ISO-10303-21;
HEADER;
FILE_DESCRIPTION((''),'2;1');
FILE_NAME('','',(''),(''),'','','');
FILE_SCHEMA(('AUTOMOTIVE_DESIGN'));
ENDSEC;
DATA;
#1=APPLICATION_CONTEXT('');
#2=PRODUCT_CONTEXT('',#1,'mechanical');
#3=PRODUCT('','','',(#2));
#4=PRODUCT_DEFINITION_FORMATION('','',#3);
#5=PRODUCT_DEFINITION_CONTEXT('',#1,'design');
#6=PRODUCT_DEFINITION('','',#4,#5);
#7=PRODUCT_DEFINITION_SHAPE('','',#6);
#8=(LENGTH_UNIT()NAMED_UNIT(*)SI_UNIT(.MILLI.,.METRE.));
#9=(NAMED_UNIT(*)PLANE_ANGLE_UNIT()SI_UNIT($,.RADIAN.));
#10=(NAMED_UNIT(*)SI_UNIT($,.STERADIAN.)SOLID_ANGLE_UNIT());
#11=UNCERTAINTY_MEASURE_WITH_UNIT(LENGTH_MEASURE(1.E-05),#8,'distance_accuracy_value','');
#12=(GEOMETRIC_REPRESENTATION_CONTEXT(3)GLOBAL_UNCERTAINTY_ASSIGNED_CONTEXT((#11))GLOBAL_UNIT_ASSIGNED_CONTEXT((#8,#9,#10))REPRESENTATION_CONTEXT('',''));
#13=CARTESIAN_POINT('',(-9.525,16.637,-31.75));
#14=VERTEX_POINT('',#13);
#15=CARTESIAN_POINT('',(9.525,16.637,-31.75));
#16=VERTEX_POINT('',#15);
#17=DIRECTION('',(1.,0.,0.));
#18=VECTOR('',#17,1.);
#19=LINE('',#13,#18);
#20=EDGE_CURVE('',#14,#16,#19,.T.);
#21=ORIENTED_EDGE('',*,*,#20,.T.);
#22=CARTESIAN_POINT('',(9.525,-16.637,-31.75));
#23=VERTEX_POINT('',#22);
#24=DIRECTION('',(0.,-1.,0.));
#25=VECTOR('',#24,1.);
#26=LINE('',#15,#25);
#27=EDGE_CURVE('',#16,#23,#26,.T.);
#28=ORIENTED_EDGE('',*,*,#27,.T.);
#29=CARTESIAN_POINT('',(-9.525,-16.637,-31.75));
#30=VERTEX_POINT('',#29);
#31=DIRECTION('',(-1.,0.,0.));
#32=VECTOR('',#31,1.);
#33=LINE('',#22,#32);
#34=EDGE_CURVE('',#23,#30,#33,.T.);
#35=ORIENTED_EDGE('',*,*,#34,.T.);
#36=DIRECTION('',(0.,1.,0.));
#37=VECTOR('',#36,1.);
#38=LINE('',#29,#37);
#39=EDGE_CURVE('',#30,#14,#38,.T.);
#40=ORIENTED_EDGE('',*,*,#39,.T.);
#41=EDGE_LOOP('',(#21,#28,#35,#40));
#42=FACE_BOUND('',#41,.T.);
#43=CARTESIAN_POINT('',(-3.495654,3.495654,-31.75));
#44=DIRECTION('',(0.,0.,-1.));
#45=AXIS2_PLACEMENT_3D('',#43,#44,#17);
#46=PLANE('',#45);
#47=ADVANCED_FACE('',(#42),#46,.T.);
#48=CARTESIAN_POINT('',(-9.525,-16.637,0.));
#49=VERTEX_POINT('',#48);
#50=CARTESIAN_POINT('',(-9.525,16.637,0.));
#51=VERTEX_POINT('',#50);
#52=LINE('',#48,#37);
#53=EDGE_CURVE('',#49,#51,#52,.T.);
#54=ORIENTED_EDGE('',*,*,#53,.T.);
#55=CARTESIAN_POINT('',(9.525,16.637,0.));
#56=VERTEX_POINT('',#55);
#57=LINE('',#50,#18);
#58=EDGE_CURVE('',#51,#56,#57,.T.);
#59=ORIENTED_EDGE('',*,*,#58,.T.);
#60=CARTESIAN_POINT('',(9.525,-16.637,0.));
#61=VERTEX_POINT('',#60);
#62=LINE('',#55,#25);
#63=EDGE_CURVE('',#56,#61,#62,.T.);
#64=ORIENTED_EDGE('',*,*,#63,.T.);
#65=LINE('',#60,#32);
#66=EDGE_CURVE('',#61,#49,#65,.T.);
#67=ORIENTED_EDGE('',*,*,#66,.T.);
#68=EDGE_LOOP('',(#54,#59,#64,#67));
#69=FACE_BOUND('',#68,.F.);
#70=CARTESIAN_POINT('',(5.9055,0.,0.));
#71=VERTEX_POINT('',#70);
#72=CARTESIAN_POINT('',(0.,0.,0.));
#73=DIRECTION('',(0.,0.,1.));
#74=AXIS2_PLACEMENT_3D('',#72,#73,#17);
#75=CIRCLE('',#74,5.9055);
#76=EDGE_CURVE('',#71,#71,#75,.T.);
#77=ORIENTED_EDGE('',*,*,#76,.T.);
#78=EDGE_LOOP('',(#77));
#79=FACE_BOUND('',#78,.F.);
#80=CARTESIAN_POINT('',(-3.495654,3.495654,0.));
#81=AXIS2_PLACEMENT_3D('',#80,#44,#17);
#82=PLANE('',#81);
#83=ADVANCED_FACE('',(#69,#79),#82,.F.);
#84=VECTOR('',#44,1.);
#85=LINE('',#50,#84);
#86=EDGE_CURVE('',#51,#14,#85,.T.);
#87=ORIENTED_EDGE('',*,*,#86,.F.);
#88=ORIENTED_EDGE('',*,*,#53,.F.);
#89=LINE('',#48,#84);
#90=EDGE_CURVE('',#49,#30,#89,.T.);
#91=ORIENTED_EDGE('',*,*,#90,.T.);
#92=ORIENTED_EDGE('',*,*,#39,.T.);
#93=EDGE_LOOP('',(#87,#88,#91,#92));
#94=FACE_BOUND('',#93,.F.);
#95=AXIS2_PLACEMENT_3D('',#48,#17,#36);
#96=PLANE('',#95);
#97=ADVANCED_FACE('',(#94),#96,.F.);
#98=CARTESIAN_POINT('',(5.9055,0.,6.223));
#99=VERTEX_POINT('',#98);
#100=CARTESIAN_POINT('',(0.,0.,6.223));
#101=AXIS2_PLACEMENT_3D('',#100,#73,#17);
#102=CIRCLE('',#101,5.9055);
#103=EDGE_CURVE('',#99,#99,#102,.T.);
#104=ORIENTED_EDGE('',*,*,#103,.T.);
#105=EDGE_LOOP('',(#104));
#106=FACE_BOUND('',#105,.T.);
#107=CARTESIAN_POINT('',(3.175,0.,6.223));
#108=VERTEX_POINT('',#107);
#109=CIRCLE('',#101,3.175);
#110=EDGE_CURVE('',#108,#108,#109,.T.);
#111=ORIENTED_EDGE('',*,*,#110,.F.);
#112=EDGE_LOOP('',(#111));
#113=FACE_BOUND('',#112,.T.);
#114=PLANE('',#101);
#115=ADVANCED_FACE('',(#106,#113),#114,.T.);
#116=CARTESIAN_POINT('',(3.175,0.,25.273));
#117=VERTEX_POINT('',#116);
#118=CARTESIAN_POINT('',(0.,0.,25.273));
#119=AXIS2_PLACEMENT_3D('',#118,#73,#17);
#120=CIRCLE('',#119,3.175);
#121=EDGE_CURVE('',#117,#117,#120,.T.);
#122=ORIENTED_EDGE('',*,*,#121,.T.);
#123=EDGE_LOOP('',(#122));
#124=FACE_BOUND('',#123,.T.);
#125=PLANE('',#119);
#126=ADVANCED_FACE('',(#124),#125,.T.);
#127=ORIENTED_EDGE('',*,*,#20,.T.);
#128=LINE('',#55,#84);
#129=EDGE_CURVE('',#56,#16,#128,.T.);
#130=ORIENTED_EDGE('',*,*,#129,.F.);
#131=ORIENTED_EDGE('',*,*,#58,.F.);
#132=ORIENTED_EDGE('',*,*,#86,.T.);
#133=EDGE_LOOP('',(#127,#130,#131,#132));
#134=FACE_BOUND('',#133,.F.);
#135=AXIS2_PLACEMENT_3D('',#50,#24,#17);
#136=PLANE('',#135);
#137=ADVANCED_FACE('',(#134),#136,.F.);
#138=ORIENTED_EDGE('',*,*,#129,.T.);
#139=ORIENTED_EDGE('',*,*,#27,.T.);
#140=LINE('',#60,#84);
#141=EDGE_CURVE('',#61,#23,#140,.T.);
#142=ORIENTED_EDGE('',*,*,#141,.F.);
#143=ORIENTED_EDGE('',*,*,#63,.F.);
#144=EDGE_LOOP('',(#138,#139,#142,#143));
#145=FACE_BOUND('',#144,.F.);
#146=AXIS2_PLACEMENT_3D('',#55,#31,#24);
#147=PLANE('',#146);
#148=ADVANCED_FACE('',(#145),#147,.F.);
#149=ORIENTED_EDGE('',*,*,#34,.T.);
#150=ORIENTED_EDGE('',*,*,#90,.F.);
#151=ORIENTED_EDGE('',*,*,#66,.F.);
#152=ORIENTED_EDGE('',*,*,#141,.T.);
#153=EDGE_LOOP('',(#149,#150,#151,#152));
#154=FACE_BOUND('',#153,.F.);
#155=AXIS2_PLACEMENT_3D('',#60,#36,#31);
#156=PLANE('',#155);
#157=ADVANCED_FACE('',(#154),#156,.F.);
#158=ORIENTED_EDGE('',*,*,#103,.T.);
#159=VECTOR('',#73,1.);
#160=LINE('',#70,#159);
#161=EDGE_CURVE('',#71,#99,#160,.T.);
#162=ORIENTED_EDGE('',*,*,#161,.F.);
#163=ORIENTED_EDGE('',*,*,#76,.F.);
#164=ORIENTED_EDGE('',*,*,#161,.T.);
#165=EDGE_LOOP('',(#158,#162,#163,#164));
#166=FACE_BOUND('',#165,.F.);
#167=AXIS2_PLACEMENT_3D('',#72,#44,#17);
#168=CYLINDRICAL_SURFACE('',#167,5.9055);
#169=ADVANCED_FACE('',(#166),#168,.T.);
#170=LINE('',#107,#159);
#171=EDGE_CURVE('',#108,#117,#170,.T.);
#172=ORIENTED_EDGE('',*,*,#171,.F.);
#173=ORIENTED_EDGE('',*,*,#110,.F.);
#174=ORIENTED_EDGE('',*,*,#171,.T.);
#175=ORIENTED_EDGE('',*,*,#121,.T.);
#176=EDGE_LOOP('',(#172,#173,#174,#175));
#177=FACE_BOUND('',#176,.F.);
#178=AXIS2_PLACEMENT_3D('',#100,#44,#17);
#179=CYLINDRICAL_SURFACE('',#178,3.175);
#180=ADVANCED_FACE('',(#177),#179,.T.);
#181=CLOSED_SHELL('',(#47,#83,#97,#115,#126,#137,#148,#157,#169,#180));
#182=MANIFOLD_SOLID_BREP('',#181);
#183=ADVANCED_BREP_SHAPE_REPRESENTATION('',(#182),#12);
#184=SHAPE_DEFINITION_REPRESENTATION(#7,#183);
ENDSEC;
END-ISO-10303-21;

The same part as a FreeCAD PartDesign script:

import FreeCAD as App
import Part
import Sketcher

V = App.Vector
Q = App.Units.Quantity

doc = App.newDocument("Part")
body = doc.addObject("PartDesign::Body", "Body")

sketch1 = body.newObject("Sketcher::SketchObject", "Sketch")
sketch1.AttachmentSupport = (doc.getObject("XY_Plane"), [""])
sketch1.MapMode = "FlatFace"
sketch1.addGeometry(Part.Circle(V(0, 0, 0), V(0, 0, 1), 6), False)
sketch1.addConstraint([
    Sketcher.Constraint("Coincident", 0, 3, -1, 1),
    Sketcher.Constraint("Diameter", 0, Q("0.465 in")),
])
pad1 = body.newObject("PartDesign::Pad", "Pad")
pad1.Profile = sketch1
pad1.Length = Q("0.245 in")

sketch2 = body.newObject("Sketcher::SketchObject", "Sketch001")
sketch2.AttachmentSupport = (doc.getObject("XY_Plane"), [""])
sketch2.MapMode = "FlatFace"
sketch2.AttachmentOffset = App.Placement(V(0, 0, 0.245 * 25.4), App.Rotation())
sketch2.addGeometry(Part.Circle(V(0, 0, 0), V(0, 0, 1), 3.2), False)
sketch2.addConstraint([
    Sketcher.Constraint("Coincident", 0, 3, -1, 1),
    Sketcher.Constraint("Diameter", 0, Q("0.25 in")),
])
pad2 = body.newObject("PartDesign::Pad", "Pad001")
pad2.Profile = sketch2
pad2.Length = Q("0.75 in")

sketch3 = body.newObject("Sketcher::SketchObject", "Sketch002")
sketch3.AttachmentSupport = (doc.getObject("XY_Plane"), [""])
sketch3.MapMode = "FlatFace"
sketch3.addGeometry([
    Part.LineSegment(V(-10, -17, 0), V(-10, 17, 0)),
    Part.LineSegment(V(-10, 17, 0), V(10, 17, 0)),
    Part.LineSegment(V(10, 17, 0), V(10, -17, 0)),
    Part.LineSegment(V(10, -17, 0), V(-10, -17, 0)),
], False)
sketch3.addConstraint([
    Sketcher.Constraint("Coincident", 0, 2, 1, 1),
    Sketcher.Constraint("Coincident", 1, 2, 2, 1),
    Sketcher.Constraint("Coincident", 2, 2, 3, 1),
    Sketcher.Constraint("Coincident", 3, 2, 0, 1),
    Sketcher.Constraint("Vertical", 0),
    Sketcher.Constraint("Horizontal", 1),
    Sketcher.Constraint("Vertical", 2),
    Sketcher.Constraint("Horizontal", 3),
    Sketcher.Constraint("Symmetric", 0, 2, 2, 2, -1, 1),
    Sketcher.Constraint("DistanceX", 1, 1, 1, 2, Q("0.75 in")),
    Sketcher.Constraint("DistanceY", 0, 1, 0, 2, Q("1.31 in")),
])
pad3 = body.newObject("PartDesign::Pad", "Pad002")
pad3.Profile = sketch3
pad3.Length = Q("1.25 in")
pad3.Reversed = True

doc.recompute()
